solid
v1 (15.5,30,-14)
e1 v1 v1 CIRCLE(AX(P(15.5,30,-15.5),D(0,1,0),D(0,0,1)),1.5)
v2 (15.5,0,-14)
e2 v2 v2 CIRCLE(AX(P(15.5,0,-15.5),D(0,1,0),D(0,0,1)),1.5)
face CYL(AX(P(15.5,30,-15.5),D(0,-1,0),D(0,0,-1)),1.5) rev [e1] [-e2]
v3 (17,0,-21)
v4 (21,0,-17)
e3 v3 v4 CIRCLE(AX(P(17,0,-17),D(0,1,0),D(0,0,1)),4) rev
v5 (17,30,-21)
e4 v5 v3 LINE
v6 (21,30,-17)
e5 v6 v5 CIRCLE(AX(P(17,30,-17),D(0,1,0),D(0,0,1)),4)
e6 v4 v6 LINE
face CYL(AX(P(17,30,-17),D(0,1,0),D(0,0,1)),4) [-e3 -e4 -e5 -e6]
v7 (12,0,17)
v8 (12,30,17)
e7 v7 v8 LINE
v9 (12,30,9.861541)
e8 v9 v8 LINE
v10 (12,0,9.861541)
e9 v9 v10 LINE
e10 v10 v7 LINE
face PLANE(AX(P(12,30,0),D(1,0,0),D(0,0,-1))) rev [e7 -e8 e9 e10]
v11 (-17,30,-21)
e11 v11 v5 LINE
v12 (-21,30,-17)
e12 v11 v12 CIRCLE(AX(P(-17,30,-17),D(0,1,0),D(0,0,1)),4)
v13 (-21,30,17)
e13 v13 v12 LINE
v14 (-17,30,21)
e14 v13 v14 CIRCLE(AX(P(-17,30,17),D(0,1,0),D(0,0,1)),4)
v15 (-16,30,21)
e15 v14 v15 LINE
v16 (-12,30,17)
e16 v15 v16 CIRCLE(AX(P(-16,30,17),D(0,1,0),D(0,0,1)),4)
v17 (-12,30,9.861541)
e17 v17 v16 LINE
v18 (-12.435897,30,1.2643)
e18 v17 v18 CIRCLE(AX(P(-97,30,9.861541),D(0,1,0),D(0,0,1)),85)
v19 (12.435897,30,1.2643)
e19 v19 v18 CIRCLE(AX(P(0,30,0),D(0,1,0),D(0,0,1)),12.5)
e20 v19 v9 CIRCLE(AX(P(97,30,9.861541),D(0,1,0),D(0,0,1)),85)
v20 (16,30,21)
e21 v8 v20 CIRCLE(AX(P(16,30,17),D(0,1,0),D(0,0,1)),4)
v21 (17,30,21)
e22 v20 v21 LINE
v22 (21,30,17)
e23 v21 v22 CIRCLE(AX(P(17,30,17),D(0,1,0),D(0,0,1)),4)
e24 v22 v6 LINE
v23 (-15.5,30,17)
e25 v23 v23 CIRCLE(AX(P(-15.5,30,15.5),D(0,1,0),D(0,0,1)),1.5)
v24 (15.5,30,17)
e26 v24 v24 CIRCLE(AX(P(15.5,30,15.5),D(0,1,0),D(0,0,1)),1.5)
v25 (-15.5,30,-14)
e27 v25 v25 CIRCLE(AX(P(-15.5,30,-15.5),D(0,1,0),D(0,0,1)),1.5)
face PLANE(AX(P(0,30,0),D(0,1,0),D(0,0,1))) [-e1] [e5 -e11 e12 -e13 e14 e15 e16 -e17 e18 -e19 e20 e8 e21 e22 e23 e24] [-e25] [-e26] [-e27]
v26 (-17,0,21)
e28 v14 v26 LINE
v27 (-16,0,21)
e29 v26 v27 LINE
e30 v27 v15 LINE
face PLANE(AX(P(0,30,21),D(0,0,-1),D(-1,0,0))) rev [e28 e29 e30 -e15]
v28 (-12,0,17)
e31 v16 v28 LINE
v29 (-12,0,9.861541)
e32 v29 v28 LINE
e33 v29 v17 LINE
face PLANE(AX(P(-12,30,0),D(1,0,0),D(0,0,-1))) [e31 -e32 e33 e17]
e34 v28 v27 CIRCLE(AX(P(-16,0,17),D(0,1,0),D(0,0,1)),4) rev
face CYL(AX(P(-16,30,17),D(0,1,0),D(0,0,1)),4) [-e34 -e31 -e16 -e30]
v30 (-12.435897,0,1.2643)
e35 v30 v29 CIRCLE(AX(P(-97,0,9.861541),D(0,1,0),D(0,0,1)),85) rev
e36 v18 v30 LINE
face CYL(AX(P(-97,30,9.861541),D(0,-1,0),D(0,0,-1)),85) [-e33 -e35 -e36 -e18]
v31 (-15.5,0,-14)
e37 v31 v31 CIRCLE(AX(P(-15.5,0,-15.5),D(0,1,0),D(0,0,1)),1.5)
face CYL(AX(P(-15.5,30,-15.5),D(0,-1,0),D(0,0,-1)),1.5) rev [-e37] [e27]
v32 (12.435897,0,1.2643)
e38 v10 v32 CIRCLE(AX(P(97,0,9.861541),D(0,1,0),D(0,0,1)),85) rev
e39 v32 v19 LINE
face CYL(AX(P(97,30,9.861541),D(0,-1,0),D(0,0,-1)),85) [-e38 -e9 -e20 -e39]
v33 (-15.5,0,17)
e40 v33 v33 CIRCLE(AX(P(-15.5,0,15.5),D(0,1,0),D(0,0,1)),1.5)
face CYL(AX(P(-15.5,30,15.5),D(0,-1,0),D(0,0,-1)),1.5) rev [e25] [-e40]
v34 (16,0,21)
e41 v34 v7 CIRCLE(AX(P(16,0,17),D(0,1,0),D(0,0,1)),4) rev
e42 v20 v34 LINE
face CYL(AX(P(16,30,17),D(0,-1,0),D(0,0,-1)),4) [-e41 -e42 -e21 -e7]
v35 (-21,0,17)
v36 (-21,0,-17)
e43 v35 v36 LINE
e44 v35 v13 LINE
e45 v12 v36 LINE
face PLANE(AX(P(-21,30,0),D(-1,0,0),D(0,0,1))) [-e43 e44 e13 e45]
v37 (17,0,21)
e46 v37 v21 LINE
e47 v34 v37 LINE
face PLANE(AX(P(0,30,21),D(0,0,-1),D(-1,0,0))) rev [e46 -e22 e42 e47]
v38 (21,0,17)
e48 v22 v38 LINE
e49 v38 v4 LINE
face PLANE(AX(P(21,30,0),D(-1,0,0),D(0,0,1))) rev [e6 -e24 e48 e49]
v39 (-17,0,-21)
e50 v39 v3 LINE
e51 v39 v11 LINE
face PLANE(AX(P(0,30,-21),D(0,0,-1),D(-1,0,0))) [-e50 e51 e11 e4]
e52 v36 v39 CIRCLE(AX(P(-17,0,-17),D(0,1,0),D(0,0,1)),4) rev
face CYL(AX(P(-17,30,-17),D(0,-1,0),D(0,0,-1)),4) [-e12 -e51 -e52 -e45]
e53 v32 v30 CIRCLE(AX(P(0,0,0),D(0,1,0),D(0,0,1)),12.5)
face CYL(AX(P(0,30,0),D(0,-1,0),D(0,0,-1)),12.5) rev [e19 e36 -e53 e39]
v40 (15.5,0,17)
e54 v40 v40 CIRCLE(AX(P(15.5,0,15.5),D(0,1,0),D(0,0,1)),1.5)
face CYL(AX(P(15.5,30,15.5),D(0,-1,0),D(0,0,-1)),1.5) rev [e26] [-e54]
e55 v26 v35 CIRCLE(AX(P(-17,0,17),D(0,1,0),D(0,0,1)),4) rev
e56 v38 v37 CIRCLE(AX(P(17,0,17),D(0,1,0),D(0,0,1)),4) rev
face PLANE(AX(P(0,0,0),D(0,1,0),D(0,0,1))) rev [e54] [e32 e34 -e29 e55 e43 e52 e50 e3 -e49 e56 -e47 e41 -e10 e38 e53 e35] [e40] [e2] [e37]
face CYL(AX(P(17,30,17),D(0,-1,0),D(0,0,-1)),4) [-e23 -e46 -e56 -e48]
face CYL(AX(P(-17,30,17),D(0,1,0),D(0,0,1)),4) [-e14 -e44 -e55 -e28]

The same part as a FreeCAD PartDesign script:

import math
import FreeCAD as App
import Part
import Sketcher
from FreeCAD import Vector


def edges_at(feature, points):
    """Names of the edges that pass closest to the given points."""
    edges = feature.Shape.Edges
    near = lambda p: min(range(len(edges)), key=lambda i: edges[i].distToShape(Part.Vertex(*p))[0])
    return sorted({f"Edge{near(p) + 1}" for p in points})

doc = App.newDocument("Part")
body = doc.addObject("PartDesign::Body", "Body")

# Sketch on XZ plane
sketch1 = body.newObject("Sketcher::SketchObject", "Sketch")
sketch1.AttachmentSupport = (doc.getObject("XZ_Plane"), [""])
sketch1.MapMode = "FlatFace"
sketch1.addGeometry([
    Part.LineSegment(Vector(-12, 21, 0), Vector(-12, 3.5, 0)),  # 0
    Part.ArcOfCircle(Part.Circle(Vector(0, 0, 0), Vector(0, 0, 1), 12.5), math.radians(164), math.radians(360)),  # 1
    Part.ArcOfCircle(Part.Circle(Vector(0, 0, 0), Vector(0, 0, 1), 12.5), math.radians(0), math.radians(16.26)),  # 2
    Part.LineSegment(Vector(12, 3.5, 0), Vector(12, 21, 0)),  # 3
    Part.LineSegment(Vector(12, 21, 0), Vector(21, 21, 0)),  # 4
    Part.LineSegment(Vector(21, 21, 0), Vector(21, -21, 0)),  # 5
    Part.LineSegment(Vector(21, -21, 0), Vector(-21, -21, 0)),  # 6
    Part.LineSegment(Vector(-21, -21, 0), Vector(-21, 21, 0)),  # 7
    Part.LineSegment(Vector(-21, 21, 0), Vector(-12, 21, 0)),  # 8
    Part.ArcOfCircle(Part.Circle(Vector(-15.5, 15.5, 0), Vector(0, 0, 1), 1.5), math.radians(0), math.radians(270)),  # 9
    Part.ArcOfCircle(Part.Circle(Vector(-15.5, 15.5, 0), Vector(0, 0, 1), 1.5), math.radians(-90), math.radians(0)),  # 10
    Part.ArcOfCircle(Part.Circle(Vector(-15.5, -15.5, 0), Vector(0, 0, 1), 1.5), math.radians(90), math.radians(360)),  # 11
    Part.ArcOfCircle(Part.Circle(Vector(-15.5, -15.5, 0), Vector(0, 0, 1), 1.5), math.radians(0), math.radians(90)),  # 12
    Part.ArcOfCircle(Part.Circle(Vector(15.5, -15.5, 0), Vector(0, 0, 1), 1.5), math.radians(180), math.radians(360)),  # 13
    Part.ArcOfCircle(Part.Circle(Vector(15.5, -15.5, 0), Vector(0, 0, 1), 1.5), math.radians(0), math.radians(90)),  # 14
    Part.ArcOfCircle(Part.Circle(Vector(15.5, -15.5, 0), Vector(0, 0, 1), 1.5), math.radians(90), math.radians(180)),  # 15
    Part.ArcOfCircle(Part.Circle(Vector(15.5, 15.5, 0), Vector(0, 0, 1), 1.5), math.radians(-90), math.radians(0)),  # 16
    Part.ArcOfCircle(Part.Circle(Vector(15.5, 15.5, 0), Vector(0, 0, 1), 1.5), math.radians(0), math.radians(180)),  # 17
    Part.ArcOfCircle(Part.Circle(Vector(15.5, 15.5, 0), Vector(0, 0, 1), 1.5), math.radians(180), math.radians(270)),  # 18
], False)
sketch1.addConstraint([
    Sketcher.Constraint("Coincident", 0, 2, 1, 1),
    Sketcher.Constraint("Tangent", 1, 2, 2, 1),
    Sketcher.Constraint("Coincident", 2, 2, 3, 1),
    Sketcher.Constraint("Coincident", 3, 2, 4, 1),
    Sketcher.Constraint("Coincident", 4, 2, 5, 1),
    Sketcher.Constraint("Coincident", 5, 2, 6, 1),
    Sketcher.Constraint("Coincident", 6, 2, 7, 1),
    Sketcher.Constraint("Coincident", 7, 2, 8, 1),
    Sketcher.Constraint("Coincident", 8, 2, 0, 1),
    Sketcher.Constraint("Tangent", 9, 1, 10, 2),
    Sketcher.Constraint("Coincident", 10, 1, 9, 2),
    Sketcher.Constraint("Tangent", 11, 1, 12, 2),
    Sketcher.Constraint("Coincident", 12, 1, 11, 2),
    Sketcher.Constraint("Tangent", 13, 2, 14, 1),
    Sketcher.Constraint("Tangent", 14, 2, 15, 1),
    Sketcher.Constraint("Tangent", 15, 2, 13, 1),
    Sketcher.Constraint("Tangent", 16, 2, 17, 1),
    Sketcher.Constraint("Tangent", 17, 2, 18, 1),
    Sketcher.Constraint("Tangent", 18, 2, 16, 1),
    Sketcher.Constraint("Vertical", 0),
    Sketcher.Constraint("Vertical", 3),
    Sketcher.Constraint("Horizontal", 4),
    Sketcher.Constraint("Vertical", 5),
    Sketcher.Constraint("Horizontal", 6),
    Sketcher.Constraint("Vertical", 7),
    Sketcher.Constraint("Horizontal", 8),
    Sketcher.Constraint("Coincident", 1, 3, -1, 1),
    Sketcher.Constraint("Equal", 1, 2),
    Sketcher.Constraint("Equal", 10, 11),
    Sketcher.Constraint("Equal", 12, 13),
    Sketcher.Constraint("Equal", 15, 16),
    Sketcher.Constraint("Symmetric", 9, 3, 13, 3, -1, 1),
    Sketcher.Constraint("Symmetric", 11, 3, 16, 3, -1, 1),
    Sketcher.Constraint("Symmetric", 4, 2, 6, 2, -1, 1),
    Sketcher.Constraint("Symmetric", 11, 3, 13, 3, -2),
    Sketcher.Constraint("Symmetric", 3, 2, 8, 2, -2),
    Sketcher.Constraint("PointOnObject", 1, 2, -1),
    Sketcher.Constraint("Horizontal", 18, 3, 9, 1),
    Sketcher.Constraint("Horizontal", 15, 3, 12, 1),
    Sketcher.Constraint("Horizontal", 12, 1, 13, 2),
    Sketcher.Constraint("Horizontal", 13, 2, 15, 2),
    Sketcher.Constraint("Horizontal", 9, 1, 16, 2),
    Sketcher.Constraint("Horizontal", 16, 2, 17, 2),
    Sketcher.Constraint("Vertical", 12, 3, 10, 1),
    Sketcher.Constraint("Vertical", 10, 1, 11, 1),
    Sketcher.Constraint("Vertical", 18, 3, 14, 2),
    Sketcher.Constraint("Vertical", 14, 2, 18, 2),
    Sketcher.Constraint("Equal", 6, 5),
    Sketcher.Constraint("Radius", 1, 12.5),
    Sketcher.Constraint("Radius", 9, 1.5),
    Sketcher.Constraint("DistanceX", 4, 1, 4, 2, 9.0),
    Sketcher.Constraint("DistanceX", 6, 2, 6, 1, 42.0),
    Sketcher.Constraint("DistanceX", 9, 1, -1, 1, 14.0),
    Sketcher.Constraint("DistanceY", -1, 1, 10, 1, 14.0),
])
pad1 = body.newObject("PartDesign::Pad", "Pad")
pad1.Profile = sketch1
pad1.Length = 30
pad1.Reversed = True
doc.recompute()

fillet = body.newObject("PartDesign::Fillet", "Fillet")
fillet.Base = (pad1, edges_at(pad1, [(-12, 15, 3.5), (12, 15, 3.5)]))
fillet.Radius = 85
doc.recompute()

fillet2 = body.newObject("PartDesign::Fillet", "Fillet001")
fillet2.Base = (fillet, edges_at(fillet, [
    (-12, 15, 21),
    (-21, 15, 21),
    (-21, 15, -21),
    (21, 15, -21),
    (21, 15, 21),
    (12, 15, 21),
]))
fillet2.Radius = 4

doc.recompute()
